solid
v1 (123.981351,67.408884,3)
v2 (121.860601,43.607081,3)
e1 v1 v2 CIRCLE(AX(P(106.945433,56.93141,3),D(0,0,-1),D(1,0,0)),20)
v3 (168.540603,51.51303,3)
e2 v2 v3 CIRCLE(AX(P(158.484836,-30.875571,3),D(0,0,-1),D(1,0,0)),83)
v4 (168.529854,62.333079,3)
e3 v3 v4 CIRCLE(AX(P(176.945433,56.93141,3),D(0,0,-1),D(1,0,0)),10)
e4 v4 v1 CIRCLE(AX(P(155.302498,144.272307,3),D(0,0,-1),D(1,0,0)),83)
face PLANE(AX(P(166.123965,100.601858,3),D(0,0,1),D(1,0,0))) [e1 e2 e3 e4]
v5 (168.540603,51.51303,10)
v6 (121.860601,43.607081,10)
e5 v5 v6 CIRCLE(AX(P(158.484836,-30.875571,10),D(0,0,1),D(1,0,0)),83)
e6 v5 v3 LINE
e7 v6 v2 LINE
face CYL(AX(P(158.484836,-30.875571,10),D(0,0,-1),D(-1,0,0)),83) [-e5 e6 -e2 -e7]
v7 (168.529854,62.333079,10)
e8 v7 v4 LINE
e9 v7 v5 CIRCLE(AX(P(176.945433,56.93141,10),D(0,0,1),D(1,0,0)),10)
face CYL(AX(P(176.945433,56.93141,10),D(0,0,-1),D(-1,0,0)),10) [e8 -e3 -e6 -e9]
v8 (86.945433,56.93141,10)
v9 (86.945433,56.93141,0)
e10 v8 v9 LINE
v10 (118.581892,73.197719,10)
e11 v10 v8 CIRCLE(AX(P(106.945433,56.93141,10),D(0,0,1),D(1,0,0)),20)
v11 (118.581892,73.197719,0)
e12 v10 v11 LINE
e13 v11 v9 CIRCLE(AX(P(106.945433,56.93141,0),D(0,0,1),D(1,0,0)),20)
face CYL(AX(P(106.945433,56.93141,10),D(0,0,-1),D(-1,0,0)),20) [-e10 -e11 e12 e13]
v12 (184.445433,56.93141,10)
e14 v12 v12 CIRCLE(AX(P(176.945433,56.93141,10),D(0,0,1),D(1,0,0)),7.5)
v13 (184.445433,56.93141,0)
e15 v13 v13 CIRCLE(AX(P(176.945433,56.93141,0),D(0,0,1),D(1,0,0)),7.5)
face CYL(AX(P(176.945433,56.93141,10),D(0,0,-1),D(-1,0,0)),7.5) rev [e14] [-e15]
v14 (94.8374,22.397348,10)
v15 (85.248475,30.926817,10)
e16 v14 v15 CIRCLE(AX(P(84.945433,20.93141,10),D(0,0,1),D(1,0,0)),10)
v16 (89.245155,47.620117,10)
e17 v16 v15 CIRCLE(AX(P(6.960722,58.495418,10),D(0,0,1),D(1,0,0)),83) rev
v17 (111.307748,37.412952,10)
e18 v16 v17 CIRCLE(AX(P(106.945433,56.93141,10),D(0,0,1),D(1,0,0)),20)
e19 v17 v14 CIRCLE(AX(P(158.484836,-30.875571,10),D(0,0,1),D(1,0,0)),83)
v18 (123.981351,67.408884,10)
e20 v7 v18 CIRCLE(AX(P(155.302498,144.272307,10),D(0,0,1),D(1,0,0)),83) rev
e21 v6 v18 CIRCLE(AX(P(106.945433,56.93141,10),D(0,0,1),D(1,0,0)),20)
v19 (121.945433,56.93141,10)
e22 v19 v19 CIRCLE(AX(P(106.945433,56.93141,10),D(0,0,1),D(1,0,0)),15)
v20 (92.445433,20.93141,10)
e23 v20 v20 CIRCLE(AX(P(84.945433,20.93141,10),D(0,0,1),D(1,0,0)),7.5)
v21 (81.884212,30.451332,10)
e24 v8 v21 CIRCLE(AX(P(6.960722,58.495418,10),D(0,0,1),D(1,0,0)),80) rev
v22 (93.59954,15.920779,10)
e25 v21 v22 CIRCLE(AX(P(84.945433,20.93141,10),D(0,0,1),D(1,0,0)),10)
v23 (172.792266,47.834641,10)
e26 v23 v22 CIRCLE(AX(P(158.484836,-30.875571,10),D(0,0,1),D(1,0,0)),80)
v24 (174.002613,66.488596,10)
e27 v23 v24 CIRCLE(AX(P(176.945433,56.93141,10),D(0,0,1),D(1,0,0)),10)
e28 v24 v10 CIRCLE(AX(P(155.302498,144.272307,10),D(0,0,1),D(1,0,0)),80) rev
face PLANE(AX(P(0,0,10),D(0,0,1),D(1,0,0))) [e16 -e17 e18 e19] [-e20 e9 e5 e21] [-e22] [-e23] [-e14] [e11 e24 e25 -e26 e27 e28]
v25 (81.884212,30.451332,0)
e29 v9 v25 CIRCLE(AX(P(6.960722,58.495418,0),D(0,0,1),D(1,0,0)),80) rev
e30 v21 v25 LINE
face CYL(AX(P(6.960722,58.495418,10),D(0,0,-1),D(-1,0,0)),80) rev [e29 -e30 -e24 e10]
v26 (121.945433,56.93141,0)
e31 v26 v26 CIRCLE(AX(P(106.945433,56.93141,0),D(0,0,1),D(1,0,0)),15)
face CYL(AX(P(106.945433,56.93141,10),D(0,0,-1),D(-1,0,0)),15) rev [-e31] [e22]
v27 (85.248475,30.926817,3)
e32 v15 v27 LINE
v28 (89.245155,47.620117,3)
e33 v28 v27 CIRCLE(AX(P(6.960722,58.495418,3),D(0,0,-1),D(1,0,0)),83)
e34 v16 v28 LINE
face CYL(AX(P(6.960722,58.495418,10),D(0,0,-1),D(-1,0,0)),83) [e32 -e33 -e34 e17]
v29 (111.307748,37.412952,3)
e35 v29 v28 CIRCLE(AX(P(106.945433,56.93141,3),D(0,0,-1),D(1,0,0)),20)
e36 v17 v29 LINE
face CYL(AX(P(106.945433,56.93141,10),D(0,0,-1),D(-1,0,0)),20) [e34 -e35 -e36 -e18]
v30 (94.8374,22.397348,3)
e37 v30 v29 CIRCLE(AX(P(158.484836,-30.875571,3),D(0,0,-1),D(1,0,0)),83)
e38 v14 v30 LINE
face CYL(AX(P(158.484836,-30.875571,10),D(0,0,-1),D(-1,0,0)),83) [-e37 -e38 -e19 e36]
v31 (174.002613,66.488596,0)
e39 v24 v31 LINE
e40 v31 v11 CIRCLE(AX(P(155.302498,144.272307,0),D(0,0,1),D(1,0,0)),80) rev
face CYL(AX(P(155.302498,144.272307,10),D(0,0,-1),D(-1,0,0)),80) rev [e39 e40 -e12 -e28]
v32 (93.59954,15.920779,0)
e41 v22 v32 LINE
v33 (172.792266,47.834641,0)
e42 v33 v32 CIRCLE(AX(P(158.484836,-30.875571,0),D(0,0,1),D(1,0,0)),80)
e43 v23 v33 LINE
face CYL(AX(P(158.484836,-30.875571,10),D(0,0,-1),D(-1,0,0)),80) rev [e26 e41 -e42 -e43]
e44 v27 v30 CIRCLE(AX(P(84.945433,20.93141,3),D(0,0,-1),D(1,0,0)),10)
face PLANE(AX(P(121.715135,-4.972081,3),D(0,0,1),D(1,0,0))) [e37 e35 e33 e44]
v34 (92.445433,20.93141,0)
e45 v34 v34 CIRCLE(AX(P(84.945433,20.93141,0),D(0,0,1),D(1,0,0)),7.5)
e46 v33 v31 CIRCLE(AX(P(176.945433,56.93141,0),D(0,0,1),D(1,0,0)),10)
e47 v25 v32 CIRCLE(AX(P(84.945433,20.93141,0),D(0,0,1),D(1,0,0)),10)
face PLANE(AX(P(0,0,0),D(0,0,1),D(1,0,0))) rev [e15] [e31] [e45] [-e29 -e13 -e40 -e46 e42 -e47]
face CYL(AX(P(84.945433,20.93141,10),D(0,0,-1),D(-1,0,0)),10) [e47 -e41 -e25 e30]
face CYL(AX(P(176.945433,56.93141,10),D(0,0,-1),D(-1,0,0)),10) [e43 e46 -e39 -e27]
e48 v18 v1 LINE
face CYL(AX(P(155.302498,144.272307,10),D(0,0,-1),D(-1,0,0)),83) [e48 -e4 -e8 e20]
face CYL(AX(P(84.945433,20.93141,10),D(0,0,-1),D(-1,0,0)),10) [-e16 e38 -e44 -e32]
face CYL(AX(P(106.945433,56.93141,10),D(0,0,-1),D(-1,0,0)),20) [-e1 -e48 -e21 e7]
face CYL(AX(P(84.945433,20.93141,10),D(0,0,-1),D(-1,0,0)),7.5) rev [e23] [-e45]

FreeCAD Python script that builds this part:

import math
import FreeCAD as App
import Part
import Sketcher

V = App.Vector
Q = App.Units.Quantity

doc = App.newDocument("Part")
params = doc.addObject("Spreadsheet::Sheet", "Params")
for row, (alias, value) in enumerate([
    ("sketch1_diameter", "15 mm"),
    ("sketch1_diameter2", "30 mm"),
    ("sketch1_radius", "80 mm"),
    ("sketch1_radius2", "10 mm"),
    ("sketch1_radius3", "20 mm"),
    ("pad1_length", "10 mm"),
    ("sketch2_radius", "10 mm"),
    ("sketch2_radius2", "83 mm"),
    ("sketch2_radius3", "20 mm"),
    ("pad2_length", "3 mm"),
], start=1):
    params.set(f"A{row}", alias)
    params.set(f"B{row}", "=" + value)
    params.setAlias(f"B{row}", alias)

body = doc.addObject("PartDesign::Body", "Body")

sketch1 = doc.addObject("Sketcher::SketchObject", "Sketch")
body.addObject(sketch1)
sketch1.AttachmentSupport = (doc.XY_Plane, [""])
sketch1.MapMode = "FlatFace"
sketch1.addGeometry(Part.ArcOfCircle(Part.Circle(V(158.484836, -30.875571, 0), V(0, 0, 1), 80), math.radians(79.697633), math.radians(144.200233)), False)
sketch1.addGeometry(Part.ArcOfCircle(Part.Circle(V(176.945433, 56.93141, 0), V(0, 0, 1), 10), math.radians(-114.539262), math.radians(107.114488)), False)
sketch1.addGeometry(Part.ArcOfCircle(Part.Circle(V(155.302498, 144.272307, 0), V(0, 0, 1), 80), math.radians(-117.323087), math.radians(-76.481965)), False)
sketch1.addGeometry(Part.ArcOfCircle(Part.Circle(V(106.945433, 56.93141, 0), V(0, 0, 1), 20), math.radians(54.421138), math.radians(180)), False)
sketch1.addGeometry(Part.ArcOfCircle(Part.Circle(V(6.960723, 58.495418, 0), V(0, 0, 1), 80), math.radians(-20.521025), math.radians(-1.12021)), False)
sketch1.addGeometry(Part.ArcOfCircle(Part.Circle(V(84.945433, 20.93141, 0), V(0, 0, 1), 10), math.radians(107.825684), math.radians(329.929641)), False)
sketch1.addGeometry(Part.ArcOfCircle(Part.Circle(V(158.484836, -30.875571, 0), V(0, 0, 1), 83), math.radians(83.041303), math.radians(116.184036)), False)
sketch1.addGeometry(Part.ArcOfCircle(Part.Circle(V(106.945433, 56.93141, 0), V(0, 0, 1), 20), math.radians(-41.775716), math.radians(31.592454)), False)
sketch1.addGeometry(Part.ArcOfCircle(Part.Circle(V(155.302498, 144.272307, 0), V(0, 0, 1), 83), math.radians(-112.170449), math.radians(-80.829917)), False)
sketch1.addGeometry(Part.ArcOfCircle(Part.Circle(V(176.945433, 56.93141, 0), V(0, 0, 1), 10), math.radians(147.304995), math.radians(212.808847)), False)
sketch1.addGeometry(Part.ArcOfCircle(Part.Circle(V(158.484836, -30.875571, 0), V(0, 0, 1), 83), math.radians(124.638634), math.radians(140.07066)), False)
sketch1.addGeometry(Part.ArcOfCircle(Part.Circle(V(84.945433, 20.93141, 0), V(0, 0, 1), 10), math.radians(8.429585), math.radians(88.263428)), False)
sketch1.addGeometry(Part.ArcOfCircle(Part.Circle(V(6.960723, 58.495418, 0), V(0, 0, 1), 83), math.radians(-19.399434), math.radians(-7.528984)), False)
sketch1.addGeometry(Part.ArcOfCircle(Part.Circle(V(106.945433, 56.93141, 0), V(0, 0, 1), 20), math.radians(-152.25323), math.radians(-77.401613)), False)
sketch1.addGeometry(Part.Circle(V(176.945433, 56.93141, 0), V(0, 0, 1), 7.5), False)
sketch1.addGeometry(Part.Circle(V(106.945433, 56.93141, 0), V(0, 0, 1), 15), False)
sketch1.addGeometry(Part.Circle(V(84.945433, 20.93141, 0), V(0, 0, 1), 7.5), False)
sketch1.addConstraint(Sketcher.Constraint("Coincident", 0, 1, 1, 1))
sketch1.addConstraint(Sketcher.Constraint("Coincident", 1, 2, 2, 2))
sketch1.addConstraint(Sketcher.Constraint("Coincident", 2, 1, 3, 1))
sketch1.addConstraint(Sketcher.Constraint("Coincident", 3, 2, 4, 2))
sketch1.addConstraint(Sketcher.Constraint("Coincident", 4, 1, 5, 1))
sketch1.addConstraint(Sketcher.Constraint("Coincident", 5, 2, 0, 2))
sketch1.addConstraint(Sketcher.Constraint("Coincident", 6, 2, 7, 1))
sketch1.addConstraint(Sketcher.Constraint("Coincident", 7, 2, 8, 1))
sketch1.addConstraint(Sketcher.Constraint("Coincident", 8, 2, 9, 1))
sketch1.addConstraint(Sketcher.Constraint("Coincident", 9, 2, 6, 1))
sketch1.addConstraint(Sketcher.Constraint("Coincident", 10, 2, 11, 1))
sketch1.addConstraint(Sketcher.Constraint("Coincident", 11, 2, 12, 1))
sketch1.addConstraint(Sketcher.Constraint("Coincident", 12, 2, 13, 1))
sketch1.addConstraint(Sketcher.Constraint("Coincident", 13, 2, 10, 1))
sketch1.addConstraint(Sketcher.Constraint("Coincident", 6, 3, 0, 3))
sketch1.addConstraint(Sketcher.Constraint("Coincident", 7, 3, 3, 3))
sketch1.addConstraint(Sketcher.Constraint("Coincident", 8, 3, 2, 3))
sketch1.addConstraint(Sketcher.Constraint("Coincident", 9, 3, 1, 3))
sketch1.addConstraint(Sketcher.Constraint("Coincident", 10, 3, 0, 3))
sketch1.addConstraint(Sketcher.Constraint("Coincident", 11, 3, 5, 3))
sketch1.addConstraint(Sketcher.Constraint("Coincident", 12, 3, 4, 3))
sketch1.addConstraint(Sketcher.Constraint("Coincident", 13, 3, 3, 3))
sketch1.addConstraint(Sketcher.Constraint("Coincident", 14, 3, 1, 3))
sketch1.addConstraint(Sketcher.Constraint("Coincident", 15, 3, 3, 3))
sketch1.addConstraint(Sketcher.Constraint("Coincident", 16, 3, 5, 3))
sketch1.addConstraint(Sketcher.Constraint("Equal", 0, 2))
sketch1.addConstraint(Sketcher.Constraint("Equal", 2, 4))
sketch1.addConstraint(Sketcher.Constraint("Equal", 1, 5))
sketch1.addConstraint(Sketcher.Constraint("Equal", 3, 7))
sketch1.addConstraint(Sketcher.Constraint("Equal", 6, 8))
sketch1.addConstraint(Sketcher.Constraint("Equal", 5, 9))
sketch1.addConstraint(Sketcher.Constraint("Equal", 8, 10))
sketch1.addConstraint(Sketcher.Constraint("Equal", 9, 11))
sketch1.addConstraint(Sketcher.Constraint("Equal", 10, 12))
sketch1.addConstraint(Sketcher.Constraint("Equal", 7, 13))
sketch1.addConstraint(Sketcher.Constraint("Equal", 14, 16))
sketch1.addConstraint(Sketcher.Constraint("Horizontal", 1, 3, 3, 3))
sketch1.addConstraint(Sketcher.Constraint("Horizontal", 15, 3, 3, 2))
sketch1.addConstraint(Sketcher.Constraint("Diameter", 14, Q("15 mm")))
sketch1.addConstraint(Sketcher.Constraint("Diameter", 15, Q("30 mm")))
sketch1.addConstraint(Sketcher.Constraint("Radius", 0, Q("80 mm")))
sketch1.addConstraint(Sketcher.Constraint("Radius", 1, Q("10 mm")))
sketch1.addConstraint(Sketcher.Constraint("Radius", 3, Q("20 mm")))
sketch1.addConstraint(Sketcher.Constraint("Radius", 6, Q("83 mm")))
sketch1.addConstraint(Sketcher.Constraint("DistanceX", 3, 3, 1, 3, Q("70 mm")))
sketch1.addConstraint(Sketcher.Constraint("DistanceX", 5, 3, 3, 3, Q("22 mm")))
sketch1.addConstraint(Sketcher.Constraint("DistanceY", 5, 3, 3, 3, Q("36 mm")))
sketch1.addConstraint(Sketcher.Constraint("DistanceX", -1, 1, 2, 3, Q("155.302498 mm")))
sketch1.addConstraint(Sketcher.Constraint("DistanceX", -1, 1, 6, 2, Q("121.860601 mm")))
sketch1.addConstraint(Sketcher.Constraint("DistanceX", -1, 1, 10, 2, Q("94.8374 mm")))
sketch1.addConstraint(Sketcher.Constraint("DistanceY", 0, 3, -1, 1, Q("30.875571 mm")))
sketch1.addConstraint(Sketcher.Constraint("DistanceY", -1, 1, 1, 3, Q("56.93141 mm")))
sketch1.addConstraint(Sketcher.Constraint("DistanceX", -1, 1, 2, 1, Q("118.581892 mm")))
sketch1.addConstraint(Sketcher.Constraint("DistanceX", -1, 1, 4, 1, Q("81.884212 mm")))
sketch1.setExpression("Constraints[38]", "Params.sketch1_diameter")
sketch1.setExpression("Constraints[39]", "Params.sketch1_diameter2")
sketch1.setExpression("Constraints[40]", "Params.sketch1_radius")
sketch1.setExpression("Constraints[41]", "Params.sketch1_radius2")
sketch1.setExpression("Constraints[42]", "Params.sketch1_radius3")
pad1 = doc.addObject("PartDesign::Pad", "Pad")
body.addObject(pad1)
pad1.Profile = sketch1
pad1.setExpression("Length", "Params.pad1_length")

sketch2 = doc.addObject("Sketcher::SketchObject", "Sketch001")
body.addObject(sketch2)
sketch2.AttachmentSupport = (doc.XY_Plane, [""])
sketch2.MapMode = "FlatFace"
sketch2.addGeometry(Part.ArcOfCircle(Part.Circle(V(84.945433, 20.93141, 0), V(0, 0, 1), 10), math.radians(8.429585), math.radians(88.263428)), False)
sketch2.addGeometry(Part.ArcOfCircle(Part.Circle(V(158.484836, -30.875571, 0), V(0, 0, 1), 83), math.radians(124.638634), math.radians(140.07066)), False)
sketch2.addGeometry(Part.ArcOfCircle(Part.Circle(V(106.945433, 56.93141, 0), V(0, 0, 1), 20), math.radians(-152.25323), math.radians(-77.401613)), False)
sketch2.addGeometry(Part.ArcOfCircle(Part.Circle(V(6.960723, 58.495418, 0), V(0, 0, 1), 83), math.radians(-19.399434), math.radians(-7.528984)), False)
sketch2.addGeometry(Part.ArcOfCircle(Part.Circle(V(176.945433, 56.93141, 0), V(0, 0, 1), 10), math.radians(147.304995), math.radians(212.808847)), False)
sketch2.addGeometry(Part.ArcOfCircle(Part.Circle(V(155.302498, 144.272307, 0), V(0, 0, 1), 83), math.radians(-112.170449), math.radians(-80.829917)), False)
sketch2.addGeometry(Part.ArcOfCircle(Part.Circle(V(106.945433, 56.93141, 0), V(0, 0, 1), 20), math.radians(-41.775716), math.radians(31.592454)), False)
sketch2.addGeometry(Part.ArcOfCircle(Part.Circle(V(158.484836, -30.875571, 0), V(0, 0, 1), 83), math.radians(83.041303), math.radians(116.184036)), False)
sketch2.addConstraint(Sketcher.Constraint("Coincident", 0, 1, 1, 2))
sketch2.addConstraint(Sketcher.Constraint("Coincident", 1, 1, 2, 2))
sketch2.addConstraint(Sketcher.Constraint("Coincident", 2, 1, 3, 2))
sketch2.addConstraint(Sketcher.Constraint("Coincident", 3, 1, 0, 2))
sketch2.addConstraint(Sketcher.Constraint("Coincident", 4, 1, 5, 2))
sketch2.addConstraint(Sketcher.Constraint("Coincident", 5, 1, 6, 2))
sketch2.addConstraint(Sketcher.Constraint("Coincident", 6, 1, 7, 2))
sketch2.addConstraint(Sketcher.Constraint("Coincident", 7, 1, 4, 2))
sketch2.addConstraint(Sketcher.Constraint("Coincident", 6, 3, 2, 3))
sketch2.addConstraint(Sketcher.Constraint("Coincident", 7, 3, 1, 3))
sketch2.addConstraint(Sketcher.Constraint("Equal", 1, 3))
sketch2.addConstraint(Sketcher.Constraint("Equal", 0, 4))
sketch2.addConstraint(Sketcher.Constraint("Equal", 3, 5))
sketch2.addConstraint(Sketcher.Constraint("Equal", 2, 6))
sketch2.addConstraint(Sketcher.Constraint("Equal", 5, 7))
sketch2.addConstraint(Sketcher.Constraint("Horizontal", 2, 3, 4, 3))
sketch2.addConstraint(Sketcher.Constraint("Radius", 0, Q("10 mm")))
sketch2.addConstraint(Sketcher.Constraint("Radius", 1, Q("83 mm")))
sketch2.addConstraint(Sketcher.Constraint("Radius", 2, Q("20 mm")))
sketch2.addConstraint(Sketcher.Constraint("DistanceX", 0, 3, 2, 3, Q("22 mm")))
sketch2.addConstraint(Sketcher.Constraint("DistanceY", 0, 3, 2, 3, Q("36 mm")))
sketch2.addConstraint(Sketcher.Constraint("DistanceX", 2, 3, 4, 3, Q("70 mm")))
sketch2.addConstraint(Sketcher.Constraint("DistanceX", 6, 1, 7, 1, Q("46.680002 mm")))
sketch2.addConstraint(Sketcher.Constraint("DistanceX", -1, 1, 5, 3, Q("155.302498 mm")))
sketch2.addConstraint(Sketcher.Constraint("DistanceX", -1, 1, 0, 1, Q("94.8374 mm")))
sketch2.addConstraint(Sketcher.Constraint("DistanceX", -1, 1, 6, 1, Q("121.860601 mm")))
sketch2.addConstraint(Sketcher.Constraint("DistanceY", 3, 1, 2, 1, Q("16.6933 mm")))
sketch2.addConstraint(Sketcher.Constraint("DistanceX", 2, 1, 4, 1, Q("79.284699 mm")))
sketch2.addConstraint(Sketcher.Constraint("DistanceY", -1, 1, 0, 3, Q("20.93141 mm")))
sketch2.addConstraint(Sketcher.Constraint("DistanceX", 3, 3, 0, 3, Q("77.98471 mm")))
sketch2.setExpression("Constraints[16]", "Params.sketch2_radius")
sketch2.setExpression("Constraints[17]", "Params.sketch2_radius2")
sketch2.setExpression("Constraints[18]", "Params.sketch2_radius3")
pad2 = doc.addObject("PartDesign::Pad", "Pad001")
body.addObject(pad2)
pad2.Profile = sketch2
pad2.setExpression("Length", "Params.pad2_length")

doc.recompute()
